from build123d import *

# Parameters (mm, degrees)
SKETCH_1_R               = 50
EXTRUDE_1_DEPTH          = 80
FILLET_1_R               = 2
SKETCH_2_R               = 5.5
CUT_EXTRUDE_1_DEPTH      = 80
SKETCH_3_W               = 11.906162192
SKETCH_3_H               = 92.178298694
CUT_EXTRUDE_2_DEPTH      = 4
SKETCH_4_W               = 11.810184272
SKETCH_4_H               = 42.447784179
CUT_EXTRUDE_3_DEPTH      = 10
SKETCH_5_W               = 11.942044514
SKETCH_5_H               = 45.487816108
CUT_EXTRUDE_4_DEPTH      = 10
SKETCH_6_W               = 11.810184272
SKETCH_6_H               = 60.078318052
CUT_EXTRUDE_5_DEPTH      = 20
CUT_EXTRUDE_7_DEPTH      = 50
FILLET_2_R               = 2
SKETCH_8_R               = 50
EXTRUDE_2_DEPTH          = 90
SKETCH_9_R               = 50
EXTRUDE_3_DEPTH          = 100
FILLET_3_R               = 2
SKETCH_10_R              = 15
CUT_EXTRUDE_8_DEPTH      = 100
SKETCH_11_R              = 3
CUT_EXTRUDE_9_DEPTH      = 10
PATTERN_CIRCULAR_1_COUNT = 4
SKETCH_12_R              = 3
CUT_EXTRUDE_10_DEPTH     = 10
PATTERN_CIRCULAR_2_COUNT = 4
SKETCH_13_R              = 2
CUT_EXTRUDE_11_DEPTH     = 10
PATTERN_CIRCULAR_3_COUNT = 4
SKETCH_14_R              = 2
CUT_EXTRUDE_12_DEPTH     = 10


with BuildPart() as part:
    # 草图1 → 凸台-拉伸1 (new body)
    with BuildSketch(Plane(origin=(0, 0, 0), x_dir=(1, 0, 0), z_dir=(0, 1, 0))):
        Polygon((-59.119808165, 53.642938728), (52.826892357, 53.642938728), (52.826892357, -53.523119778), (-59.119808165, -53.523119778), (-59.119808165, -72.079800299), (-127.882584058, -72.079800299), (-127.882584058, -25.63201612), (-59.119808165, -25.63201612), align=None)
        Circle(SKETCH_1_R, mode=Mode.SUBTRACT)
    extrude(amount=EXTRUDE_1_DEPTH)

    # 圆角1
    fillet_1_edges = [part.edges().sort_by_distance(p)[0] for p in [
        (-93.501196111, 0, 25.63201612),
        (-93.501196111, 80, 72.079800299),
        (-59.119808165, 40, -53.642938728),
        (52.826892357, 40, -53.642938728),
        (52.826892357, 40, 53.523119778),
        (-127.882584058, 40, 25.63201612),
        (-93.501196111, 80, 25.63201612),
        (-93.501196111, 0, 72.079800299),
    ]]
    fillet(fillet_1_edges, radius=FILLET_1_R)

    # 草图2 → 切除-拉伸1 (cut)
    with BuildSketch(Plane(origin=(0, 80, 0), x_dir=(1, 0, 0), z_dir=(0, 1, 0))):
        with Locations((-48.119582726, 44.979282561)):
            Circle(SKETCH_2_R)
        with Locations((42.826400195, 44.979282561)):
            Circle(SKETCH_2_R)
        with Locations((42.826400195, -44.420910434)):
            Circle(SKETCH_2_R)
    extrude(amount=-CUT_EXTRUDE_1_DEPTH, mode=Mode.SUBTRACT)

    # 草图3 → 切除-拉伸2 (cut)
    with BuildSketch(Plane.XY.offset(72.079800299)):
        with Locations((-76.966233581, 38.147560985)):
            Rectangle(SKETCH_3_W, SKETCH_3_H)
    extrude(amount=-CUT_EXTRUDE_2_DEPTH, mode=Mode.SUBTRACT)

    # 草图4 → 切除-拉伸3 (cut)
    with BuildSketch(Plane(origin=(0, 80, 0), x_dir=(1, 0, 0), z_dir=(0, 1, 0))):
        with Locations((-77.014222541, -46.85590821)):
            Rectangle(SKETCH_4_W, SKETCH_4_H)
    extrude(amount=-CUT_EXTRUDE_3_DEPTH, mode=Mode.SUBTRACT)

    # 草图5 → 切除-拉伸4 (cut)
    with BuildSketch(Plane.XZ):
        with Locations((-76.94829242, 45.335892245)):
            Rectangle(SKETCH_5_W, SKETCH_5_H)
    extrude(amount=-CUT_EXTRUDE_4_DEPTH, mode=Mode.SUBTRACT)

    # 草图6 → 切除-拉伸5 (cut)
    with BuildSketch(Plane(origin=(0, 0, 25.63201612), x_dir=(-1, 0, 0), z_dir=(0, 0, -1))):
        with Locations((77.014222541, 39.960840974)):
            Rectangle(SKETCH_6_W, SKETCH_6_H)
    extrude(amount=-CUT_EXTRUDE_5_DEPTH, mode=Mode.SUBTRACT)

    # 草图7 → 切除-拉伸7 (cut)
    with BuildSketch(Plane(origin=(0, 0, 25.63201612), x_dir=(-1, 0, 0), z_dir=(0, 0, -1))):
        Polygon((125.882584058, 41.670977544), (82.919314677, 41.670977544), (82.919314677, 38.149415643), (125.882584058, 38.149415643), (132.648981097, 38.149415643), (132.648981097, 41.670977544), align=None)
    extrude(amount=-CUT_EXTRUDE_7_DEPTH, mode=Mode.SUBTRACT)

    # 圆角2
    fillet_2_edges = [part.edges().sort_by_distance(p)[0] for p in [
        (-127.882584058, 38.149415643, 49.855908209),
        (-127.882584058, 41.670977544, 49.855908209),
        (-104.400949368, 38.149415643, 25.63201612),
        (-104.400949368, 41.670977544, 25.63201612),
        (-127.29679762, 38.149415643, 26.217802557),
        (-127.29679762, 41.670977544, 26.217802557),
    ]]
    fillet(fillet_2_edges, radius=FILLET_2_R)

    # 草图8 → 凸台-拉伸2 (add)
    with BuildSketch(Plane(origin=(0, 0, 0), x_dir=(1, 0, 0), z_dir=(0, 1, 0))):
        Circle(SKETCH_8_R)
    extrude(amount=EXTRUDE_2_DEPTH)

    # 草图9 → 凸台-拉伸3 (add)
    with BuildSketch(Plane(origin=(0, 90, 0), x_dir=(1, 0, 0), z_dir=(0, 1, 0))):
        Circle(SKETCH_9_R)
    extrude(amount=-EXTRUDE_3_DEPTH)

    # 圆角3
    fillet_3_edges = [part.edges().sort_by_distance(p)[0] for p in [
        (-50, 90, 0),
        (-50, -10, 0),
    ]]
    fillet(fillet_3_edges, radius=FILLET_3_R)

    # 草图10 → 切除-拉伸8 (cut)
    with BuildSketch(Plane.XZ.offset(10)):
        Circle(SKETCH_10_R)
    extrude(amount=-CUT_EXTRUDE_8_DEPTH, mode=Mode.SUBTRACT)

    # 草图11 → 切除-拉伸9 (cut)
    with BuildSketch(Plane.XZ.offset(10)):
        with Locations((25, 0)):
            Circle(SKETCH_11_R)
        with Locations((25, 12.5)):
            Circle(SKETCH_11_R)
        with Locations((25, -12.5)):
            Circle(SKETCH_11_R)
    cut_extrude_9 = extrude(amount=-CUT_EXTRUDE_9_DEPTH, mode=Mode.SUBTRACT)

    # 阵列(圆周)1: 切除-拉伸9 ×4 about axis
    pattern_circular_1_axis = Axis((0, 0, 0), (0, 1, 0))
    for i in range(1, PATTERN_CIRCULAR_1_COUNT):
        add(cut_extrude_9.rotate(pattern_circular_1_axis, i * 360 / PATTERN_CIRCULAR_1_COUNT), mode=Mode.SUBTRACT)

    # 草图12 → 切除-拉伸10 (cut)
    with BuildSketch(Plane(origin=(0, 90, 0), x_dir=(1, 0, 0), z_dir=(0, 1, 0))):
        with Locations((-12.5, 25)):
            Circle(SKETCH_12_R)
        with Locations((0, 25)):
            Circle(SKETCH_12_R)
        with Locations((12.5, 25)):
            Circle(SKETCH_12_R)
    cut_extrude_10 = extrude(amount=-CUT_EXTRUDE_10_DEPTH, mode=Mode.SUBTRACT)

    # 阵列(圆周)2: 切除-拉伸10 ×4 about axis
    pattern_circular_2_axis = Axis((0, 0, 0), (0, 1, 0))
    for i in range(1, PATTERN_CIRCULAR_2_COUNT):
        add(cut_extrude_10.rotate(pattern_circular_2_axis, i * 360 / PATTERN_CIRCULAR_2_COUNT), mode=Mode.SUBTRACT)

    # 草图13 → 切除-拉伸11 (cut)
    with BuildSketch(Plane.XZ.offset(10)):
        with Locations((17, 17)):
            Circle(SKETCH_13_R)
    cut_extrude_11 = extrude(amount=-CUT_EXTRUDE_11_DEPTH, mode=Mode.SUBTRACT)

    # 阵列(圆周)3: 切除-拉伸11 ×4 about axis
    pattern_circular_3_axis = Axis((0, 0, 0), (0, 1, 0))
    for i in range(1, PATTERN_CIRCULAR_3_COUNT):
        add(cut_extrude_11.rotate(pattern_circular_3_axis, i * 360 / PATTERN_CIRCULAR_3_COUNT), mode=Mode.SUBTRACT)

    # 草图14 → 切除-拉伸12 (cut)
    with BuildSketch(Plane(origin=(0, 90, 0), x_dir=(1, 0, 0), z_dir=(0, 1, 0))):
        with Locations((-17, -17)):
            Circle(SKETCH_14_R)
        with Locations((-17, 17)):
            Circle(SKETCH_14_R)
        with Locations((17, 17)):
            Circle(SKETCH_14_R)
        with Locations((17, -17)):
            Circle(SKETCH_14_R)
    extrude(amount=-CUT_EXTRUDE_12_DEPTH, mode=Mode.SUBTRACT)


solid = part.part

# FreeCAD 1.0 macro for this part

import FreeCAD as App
import Part
import Sketcher

V = App.Vector
Q = App.Units.Quantity


def edges_at(feature, points):
    """Names of the edges that pass closest to the given points."""
    edges = feature.Shape.Edges
    near = lambda p: min(range(len(edges)), key=lambda i: edges[i].distToShape(Part.Vertex(*p))[0])
    return sorted({f"Edge{near(p) + 1}" for p in points})


def add_polygon(sketch, points):
    """Adds a closed chain of lines whose ends are joined by coincident constraints."""
    first, n = sketch.GeometryCount, len(points)
    for a, b in zip(points, points[1:] + points[:1]):
        sketch.addGeometry(Part.LineSegment(App.Vector(*a, 0), App.Vector(*b, 0)), False)
    for i in range(n):
        sketch.addConstraint(Sketcher.Constraint("Coincident", first + i, 2, first + (i + 1) % n, 1))

doc = App.newDocument("Part")
params = doc.addObject("Spreadsheet::Sheet", "Params")
for row, (alias, value) in enumerate([
    ("sketch1_diameter", "100 mm"),
    ("pad1_length", "80 mm"),
    ("fillet_radius", "2 mm"),
    ("sketch2_diameter", "11 mm"),
    ("pocket1_length", "80 mm"),
    ("pocket2_length", "4 mm"),
    ("pocket3_length", "10 mm"),
    ("pocket4_length", "10 mm"),
    ("pocket5_length", "20 mm"),
    ("pocket6_length", "50 mm"),
    ("fillet2_radius", "2 mm"),
    ("sketch8_diameter", "100 mm"),
    ("pad2_length", "90 mm"),
    ("sketch9_diameter", "100 mm"),
    ("pad3_length", "100 mm"),
    ("fillet3_radius", "2 mm"),
    ("sketch10_diameter", "30 mm"),
    ("pocket7_length", "100 mm"),
    ("sketch11_diameter", "6 mm"),
    ("pocket8_length", "10 mm"),
    ("sketch12_diameter", "6 mm"),
    ("pocket9_length", "10 mm"),
    ("sketch13_diameter", "4 mm"),
    ("pocket10_length", "10 mm"),
    ("sketch14_diameter", "4 mm"),
    ("pocket11_length", "10 mm"),
], start=1):
    params.set(f"A{row}", alias)
    params.set(f"B{row}", "=" + value)
    params.setAlias(f"B{row}", alias)

body = doc.addObject("PartDesign::Body", "Body")

# Sketch on XZ plane
sketch1 = doc.addObject("Sketcher::SketchObject", "Sketch")
body.addObject(sketch1)
sketch1.AttachmentSupport = (doc.XZ_Plane, [""])
sketch1.MapMode = "FlatFace"
add_polygon(sketch1, [(53, -54), (-59, -54), (-59, 26), (-128, 26), (-128, 72), (-59, 72), (-59, 54), (53, 54)])  # lines 0-7
sketch1.addGeometry(Part.Circle(V(0, 0, 0), V(0, 0, 1), 50), False)  # 8
sketch1.addConstraint([
    Sketcher.Constraint("Horizontal", 0),
    Sketcher.Constraint("Vertical", 1),
    Sketcher.Constraint("Horizontal", 2),
    Sketcher.Constraint("Vertical", 3),
    Sketcher.Constraint("Horizontal", 4),
    Sketcher.Constraint("Vertical", 5),
    Sketcher.Constraint("Horizontal", 6),
    Sketcher.Constraint("Vertical", 7),
    Sketcher.Constraint("Coincident", 8, 3, -1, 1),
    Sketcher.Constraint("Vertical", 1, 2, 4, 2),
    Sketcher.Constraint("Diameter", 8, Q("100 mm")),
    Sketcher.Constraint("DistanceX", 0, 2, 0, 1, Q("111.946701 mm")),
    Sketcher.Constraint("DistanceY", 5, 2, 5, 1, Q("18.556681 mm")),
    Sketcher.Constraint("DistanceY", 7, 2, 7, 1, Q("107.166059 mm")),
    Sketcher.Constraint("DistanceY", -1, 1, 3, 2, Q("72.0798 mm")),
    Sketcher.Constraint("DistanceX", 2, 2, 2, 1, Q("68.762776 mm")),
    Sketcher.Constraint("DistanceY", 1, 1, 1, 2, Q("79.274955 mm")),
    Sketcher.Constraint("DistanceX", 0, 2, -1, 1, Q("59.119808 mm")),
])
sketch1.setExpression("Constraints[18]", "Params.sketch1_diameter")
pad1 = doc.addObject("PartDesign::Pad", "Pad")
body.addObject(pad1)
pad1.Profile = sketch1
pad1.setExpression("Length", "Params.pad1_length")
pad1.Reversed = True
doc.recompute()

fillet = doc.addObject("PartDesign::Fillet", "Fillet")
body.addObject(fillet)
fillet.Base = (pad1, edges_at(pad1, [
    (-93.501, 0, 25.632),
    (-93.501, 80, 72.08),
    (-59.12, 40, -53.643),
    (52.827, 40, -53.643),
    (52.827, 40, 53.523),
    (-127.883, 40, 25.632),
    (-93.501, 80, 25.632),
    (-93.501, 0, 72.08),
]))
fillet.setExpression("Radius", "Params.fillet_radius")

# Sketch on XZ plane
sketch2 = doc.addObject("Sketcher::SketchObject", "Sketch001")
body.addObject(sketch2)
sketch2.AttachmentSupport = (doc.XZ_Plane, [""])
sketch2.MapMode = "FlatFace"
sketch2.AttachmentOffset = App.Placement(V(0, 0, -80), App.Rotation())
sketch2.addGeometry([
    Part.Circle(V(-48, -45, 0), V(0, 0, 1), 6),
    Part.Circle(V(43, -45, 0), V(0, 0, 1), 6),
    Part.Circle(V(43, 44, 0), V(0, 0, 1), 6),
], False)
sketch2.addConstraint([
    Sketcher.Constraint("Equal", 0, 1),
    Sketcher.Constraint("Equal", 1, 2),
    Sketcher.Constraint("Horizontal", 0, 3, 1, 3),
    Sketcher.Constraint("Vertical", 1, 3, 2, 3),
    Sketcher.Constraint("Diameter", 0, Q("11 mm")),
    Sketcher.Constraint("DistanceX", -1, 1, 1, 3, Q("42.8264 mm")),
    Sketcher.Constraint("DistanceY", -1, 1, 2, 3, Q("44.42091 mm")),
    Sketcher.Constraint("DistanceX", 0, 3, -1, 1, Q("48.119583 mm")),
    Sketcher.Constraint("DistanceY", 0, 3, -1, 1, Q("44.979283 mm")),
])
sketch2.setExpression("Constraints[4]", "Params.sketch2_diameter")
pocket1 = doc.addObject("PartDesign::Pocket", "Pocket")
body.addObject(pocket1)
pocket1.Profile = sketch2
pocket1.setExpression("Length", "Params.pocket1_length")
pocket1.Reversed = True

# Sketch on XY plane
sketch3 = doc.addObject("Sketcher::SketchObject", "Sketch002")
body.addObject(sketch3)
sketch3.AttachmentSupport = (doc.XY_Plane, [""])
sketch3.MapMode = "FlatFace"
sketch3.AttachmentOffset = App.Placement(V(0, 0, 72.0798), App.Rotation())
add_polygon(sketch3, [(-83, 84), (-83, -8), (-71, -8), (-71, 84)])  # lines 0-3
sketch3.addConstraint([
    Sketcher.Constraint("Vertical", 0),
    Sketcher.Constraint("Horizontal", 1),
    Sketcher.Constraint("Vertical", 2),
    Sketcher.Constraint("Horizontal", 3),
    Sketcher.Constraint("DistanceY", 0, 2, 0, 1, Q("92.178299 mm")),
    Sketcher.Constraint("DistanceX", 1, 1, 1, 2, Q("11.906162 mm")),
    Sketcher.Constraint("DistanceY", 0, 2, -1, 1, Q("7.941588 mm")),
    Sketcher.Constraint("DistanceX", 0, 2, -1, 1, Q("82.919315 mm")),
])
pocket2 = doc.addObject("PartDesign::Pocket", "Pocket001")
body.addObject(pocket2)
pocket2.Profile = sketch3
pocket2.setExpression("Length", "Params.pocket2_length")

# Sketch on XZ plane
sketch4 = doc.addObject("Sketcher::SketchObject", "Sketch003")
body.addObject(sketch4)
sketch4.AttachmentSupport = (doc.XZ_Plane, [""])
sketch4.MapMode = "FlatFace"
sketch4.AttachmentOffset = App.Placement(V(0, 0, -80), App.Rotation())
add_polygon(sketch4, [(-83, 26), (-83, 68), (-71, 68), (-71, 26)])  # lines 0-3
sketch4.addConstraint([
    Sketcher.Constraint("Vertical", 0),
    Sketcher.Constraint("Horizontal", 1),
    Sketcher.Constraint("Vertical", 2),
    Sketcher.Constraint("Horizontal", 3),
    Sketcher.Constraint("DistanceY", -1, 1, 0, 2, Q("68.0798 mm")),
    Sketcher.Constraint("DistanceX", 1, 1, 1, 2, Q("11.810184 mm")),
    Sketcher.Constraint("DistanceY", 0, 1, 0, 2, Q("42.447784 mm")),
    Sketcher.Constraint("DistanceX", 1, 2, -1, 1, Q("71.10913 mm")),
])
pocket3 = doc.addObject("PartDesign::Pocket", "Pocket002")
body.addObject(pocket3)
pocket3.Profile = sketch4
pocket3.setExpression("Length", "Params.pocket3_length")
pocket3.Reversed = True

# Sketch on XZ plane
sketch5 = doc.addObject("Sketcher::SketchObject", "Sketch004")
body.addObject(sketch5)
sketch5.AttachmentSupport = (doc.XZ_Plane, [""])
sketch5.MapMode = "FlatFace"
add_polygon(sketch5, [(-83, 68), (-83, 23), (-71, 23), (-71, 68)])  # lines 0-3
sketch5.addConstraint([
    Sketcher.Constraint("Vertical", 0),
    Sketcher.Constraint("Horizontal", 1),
    Sketcher.Constraint("Vertical", 2),
    Sketcher.Constraint("Horizontal", 3),
    Sketcher.Constraint("DistanceY", -1, 1, 2, 2, Q("68.0798 mm")),
    Sketcher.Constraint("DistanceX", 1, 1, 1, 2, Q("11.942045 mm")),
    Sketcher.Constraint("DistanceY", 0, 2, 0, 1, Q("45.487816 mm")),
    Sketcher.Constraint("DistanceX", 1, 2, -1, 1, Q("70.97727 mm")),
])
pocket4 = doc.addObject("PartDesign::Pocket", "Pocket003")
body.addObject(pocket4)
pocket4.Profile = sketch5
pocket4.setExpression("Length", "Params.pocket4_length")

# Sketch on XY plane
sketch6 = doc.addObject("Sketcher::SketchObject", "Sketch005")
body.addObject(sketch6)
sketch6.AttachmentSupport = (doc.XY_Plane, [""])
sketch6.MapMode = "FlatFace"
sketch6.AttachmentOffset = App.Placement(V(0, 0, 25.632016), App.Rotation())
add_polygon(sketch6, [(-71, 70), (-71, 10), (-83, 10), (-83, 70)])  # lines 0-3
sketch6.addConstraint([
    Sketcher.Constraint("Vertical", 0),
    Sketcher.Constraint("Horizontal", 1),
    Sketcher.Constraint("Vertical", 2),
    Sketcher.Constraint("Horizontal", 3),
    Sketcher.Constraint("DistanceY", -1, 1, 2, 2, Q("70 mm")),
    Sketcher.Constraint("DistanceY", 0, 2, 0, 1, Q("60.078318 mm")),
    Sketcher.Constraint("DistanceX", 1, 2, 1, 1, Q("11.810184 mm")),
    Sketcher.Constraint("DistanceX", 0, 2, -1, 1, Q("71.10913 mm")),
])
pocket5 = doc.addObject("PartDesign::Pocket", "Pocket004")
body.addObject(pocket5)
pocket5.Profile = sketch6
pocket5.setExpression("Length", "Params.pocket5_length")
pocket5.Reversed = True

# Sketch on XY plane
sketch7 = doc.addObject("Sketcher::SketchObject", "Sketch006")
body.addObject(sketch7)
sketch7.AttachmentSupport = (doc.XY_Plane, [""])
sketch7.MapMode = "FlatFace"
sketch7.AttachmentOffset = App.Placement(V(0, 0, 25.632016), App.Rotation())
add_polygon(sketch7, [(-82.9, 41.7), (-82.9, 38.1), (-132.6, 38.1), (-132.6, 41.7)])  # lines 0-3
sketch7.addConstraint([
    Sketcher.Constraint("Vertical", 0),
    Sketcher.Constraint("Horizontal", 1),
    Sketcher.Constraint("Vertical", 2),
    Sketcher.Constraint("Horizontal", 3),
    Sketcher.Constraint("DistanceY", 0, 2, 0, 1, Q("3.521562 mm")),
    Sketcher.Constraint("DistanceX", 1, 2, 1, 1, Q("49.729666 mm")),
    Sketcher.Constraint("DistanceX", 1, 2, -1, 1, Q("132.648981 mm")),
    Sketcher.Constraint("DistanceY", -1, 1, 0, 2, Q("38.149416 mm")),
])
pocket6 = doc.addObject("PartDesign::Pocket", "Pocket005")
body.addObject(pocket6)
pocket6.Profile = sketch7
pocket6.setExpression("Length", "Params.pocket6_length")
pocket6.Reversed = True
doc.recompute()

fillet2 = doc.addObject("PartDesign::Fillet", "Fillet001")
body.addObject(fillet2)
fillet2.Base = (pocket6, edges_at(pocket6, [
    (-127.883, 38.149, 49.856),
    (-127.883, 41.671, 49.856),
    (-104.401, 38.149, 25.632),
    (-104.401, 41.671, 25.632),
    (-127.297, 38.149, 26.218),
    (-127.297, 41.671, 26.218),
]))
fillet2.setExpression("Radius", "Params.fillet2_radius")

# Sketch on XZ plane
sketch8 = doc.addObject("Sketcher::SketchObject", "Sketch007")
body.addObject(sketch8)
sketch8.AttachmentSupport = (doc.XZ_Plane, [""])
sketch8.MapMode = "FlatFace"
sketch8.addGeometry(Part.Circle(V(0, 0, 0), V(0, 0, 1), 50), False)
sketch8.addConstraint([
    Sketcher.Constraint("Coincident", 0, 3, -1, 1),
    Sketcher.Constraint("Diameter", 0, Q("100 mm")),
])
sketch8.setExpression("Constraints[1]", "Params.sketch8_diameter")
pad2 = doc.addObject("PartDesign::Pad", "Pad001")
body.addObject(pad2)
pad2.Profile = sketch8
pad2.setExpression("Length", "Params.pad2_length")
pad2.Reversed = True

# Sketch on XZ plane
sketch9 = doc.addObject("Sketcher::SketchObject", "Sketch008")
body.addObject(sketch9)
sketch9.AttachmentSupport = (doc.XZ_Plane, [""])
sketch9.MapMode = "FlatFace"
sketch9.AttachmentOffset = App.Placement(V(0, 0, -90), App.Rotation())
sketch9.addGeometry(Part.Circle(V(0, 0, 0), V(0, 0, 1), 50), False)
sketch9.addConstraint([
    Sketcher.Constraint("Coincident", 0, 3, -1, 1),
    Sketcher.Constraint("Diameter", 0, Q("100 mm")),
])
sketch9.setExpression("Constraints[1]", "Params.sketch9_diameter")
pad3 = doc.addObject("PartDesign::Pad", "Pad002")
body.addObject(pad3)
pad3.Profile = sketch9
pad3.setExpression("Length", "Params.pad3_length")
doc.recompute()

fillet3 = doc.addObject("PartDesign::Fillet", "Fillet002")
body.addObject(fillet3)
fillet3.Base = (pad3, edges_at(pad3, [(-50, 90, 0), (-50, -10, 0)]))
fillet3.setExpression("Radius", "Params.fillet3_radius")

# Sketch on XZ plane
sketch10 = doc.addObject("Sketcher::SketchObject", "Sketch009")
body.addObject(sketch10)
sketch10.AttachmentSupport = (doc.XZ_Plane, [""])
sketch10.MapMode = "FlatFace"
sketch10.AttachmentOffset = App.Placement(V(0, 0, 10), App.Rotation())
sketch10.addGeometry(Part.Circle(V(0, 0, 0), V(0, 0, 1), 15), False)
sketch10.addConstraint([
    Sketcher.Constraint("Coincident", 0, 3, -1, 1),
    Sketcher.Constraint("Diameter", 0, Q("30 mm")),
])
sketch10.setExpression("Constraints[1]", "Params.sketch10_diameter")
pocket7 = doc.addObject("PartDesign::Pocket", "Pocket006")
body.addObject(pocket7)
pocket7.Profile = sketch10
pocket7.setExpression("Length", "Params.pocket7_length")

# Sketch on XZ plane
sketch11 = doc.addObject("Sketcher::SketchObject", "Sketch010")
body.addObject(sketch11)
sketch11.AttachmentSupport = (doc.XZ_Plane, [""])
sketch11.MapMode = "FlatFace"
sketch11.AttachmentOffset = App.Placement(V(0, 0, 10), App.Rotation())
sketch11.addGeometry([
    Part.Circle(V(25, 0, 0), V(0, 0, 1), 3),
    Part.Circle(V(25, 12.5, 0), V(0, 0, 1), 3),
    Part.Circle(V(25, -12.5, 0), V(0, 0, 1), 3),
], False)
sketch11.addConstraint([
    Sketcher.Constraint("Equal", 0, 1),
    Sketcher.Constraint("Equal", 1, 2),
    Sketcher.Constraint("Symmetric", 1, 3, 2, 3, -1),
    Sketcher.Constraint("PointOnObject", 0, 3, -1),
    Sketcher.Constraint("Vertical", 0, 3, 1, 3),
    Sketcher.Constraint("Diameter", 0, Q("6 mm")),
    Sketcher.Constraint("DistanceX", -1, 1, 0, 3, Q("25 mm")),
    Sketcher.Constraint("DistanceY", 2, 3, 1, 3, Q("25 mm")),
])
sketch11.setExpression("Constraints[5]", "Params.sketch11_diameter")
pocket8 = doc.addObject("PartDesign::Pocket", "Pocket007")
body.addObject(pocket8)
pocket8.Profile = sketch11
pocket8.setExpression("Length", "Params.pocket8_length")
doc.recompute()

polarpattern = doc.addObject("PartDesign::PolarPattern", "PolarPattern")
body.addObject(polarpattern)
polarpattern.Originals = [pocket8]
polarpattern.Axis = (doc.Y_Axis, [""])
polarpattern.Angle = 360
polarpattern.Occurrences = 4
body.Tip = polarpattern

# Sketch on XZ plane
sketch12 = doc.addObject("Sketcher::SketchObject", "Sketch011")
body.addObject(sketch12)
sketch12.AttachmentSupport = (doc.XZ_Plane, [""])
sketch12.MapMode = "FlatFace"
sketch12.AttachmentOffset = App.Placement(V(0, 0, -90), App.Rotation())
sketch12.addGeometry([
    Part.Circle(V(-12.5, -25, 0), V(0, 0, 1), 3),
    Part.Circle(V(0, -25, 0), V(0, 0, 1), 3),
    Part.Circle(V(12.5, -25, 0), V(0, 0, 1), 3),
], False)
sketch12.addConstraint([
    Sketcher.Constraint("Equal", 0, 1),
    Sketcher.Constraint("Equal", 1, 2),
    Sketcher.Constraint("Symmetric", 0, 3, 2, 3, -2),
    Sketcher.Constraint("PointOnObject", 1, 3, -2),
    Sketcher.Constraint("Horizontal", 0, 3, 1, 3),
    Sketcher.Constraint("Diameter", 0, Q("6 mm")),
    Sketcher.Constraint("DistanceY", 0, 3, -1, 1, Q("25 mm")),
    Sketcher.Constraint("DistanceX", 0, 3, 2, 3, Q("25 mm")),
])
sketch12.setExpression("Constraints[5]", "Params.sketch12_diameter")
pocket9 = doc.addObject("PartDesign::Pocket", "Pocket008")
body.addObject(pocket9)
pocket9.Profile = sketch12
pocket9.setExpression("Length", "Params.pocket9_length")
pocket9.Reversed = True
doc.recompute()

polarpattern2 = doc.addObject("PartDesign::PolarPattern", "PolarPattern001")
body.addObject(polarpattern2)
polarpattern2.Originals = [pocket9]
polarpattern2.Axis = (doc.Y_Axis, [""])
polarpattern2.Angle = 360
polarpattern2.Occurrences = 4
body.Tip = polarpattern2

# Sketch on XZ plane
sketch13 = doc.addObject("Sketcher::SketchObject", "Sketch012")
body.addObject(sketch13)
sketch13.AttachmentSupport = (doc.XZ_Plane, [""])
sketch13.MapMode = "FlatFace"
sketch13.AttachmentOffset = App.Placement(V(0, 0, 10), App.Rotation())
sketch13.addGeometry(Part.Circle(V(17, 17, 0), V(0, 0, 1), 2), False)
sketch13.addConstraint([
    Sketcher.Constraint("Diameter", 0, Q("4 mm")),
    Sketcher.Constraint("DistanceX", -1, 1, 0, 3, Q("17 mm")),
    Sketcher.Constraint("DistanceY", -1, 1, 0, 3, Q("17 mm")),
])
sketch13.setExpression("Constraints[0]", "Params.sketch13_diameter")
pocket10 = doc.addObject("PartDesign::Pocket", "Pocket009")
body.addObject(pocket10)
pocket10.Profile = sketch13
pocket10.setExpression("Length", "Params.pocket10_length")
doc.recompute()

polarpattern3 = doc.addObject("PartDesign::PolarPattern", "PolarPattern002")
body.addObject(polarpattern3)
polarpattern3.Originals = [pocket10]
polarpattern3.Axis = (doc.Y_Axis, [""])
polarpattern3.Angle = 360
polarpattern3.Occurrences = 4
body.Tip = polarpattern3

# Sketch on XZ plane
sketch14 = doc.addObject("Sketcher::SketchObject", "Sketch013")
body.addObject(sketch14)
sketch14.AttachmentSupport = (doc.XZ_Plane, [""])
sketch14.MapMode = "FlatFace"
sketch14.AttachmentOffset = App.Placement(V(0, 0, -90), App.Rotation())
sketch14.addGeometry([
    Part.Circle(V(-17, 17, 0), V(0, 0, 1), 2),
    Part.Circle(V(-17, -17, 0), V(0, 0, 1), 2),
    Part.Circle(V(17, -17, 0), V(0, 0, 1), 2),
    Part.Circle(V(17, 17, 0), V(0, 0, 1), 2),
], False)
sketch14.addConstraint([
    Sketcher.Constraint("Equal", 0, 1),
    Sketcher.Constraint("Equal", 1, 2),
    Sketcher.Constraint("Equal", 2, 3),
    Sketcher.Constraint("Symmetric", 0, 3, 2, 3, -1, 1),
    Sketcher.Constraint("Symmetric", 1, 3, 3, 3, -1, 1),
    Sketcher.Constraint("Symmetric", 1, 3, 2, 3, -2),
    Sketcher.Constraint("Diameter", 0, Q("4 mm")),
    Sketcher.Constraint("DistanceX", 0, 3, -1, 1, Q("17 mm")),
    Sketcher.Constraint("DistanceY", -1, 1, 0, 3, Q("17 mm")),
])
sketch14.setExpression("Constraints[6]", "Params.sketch14_diameter")
pocket11 = doc.addObject("PartDesign::Pocket", "Pocket010")
body.addObject(pocket11)
pocket11.Profile = sketch14
pocket11.setExpression("Length", "Params.pocket11_length")
pocket11.Reversed = True

doc.recompute()
